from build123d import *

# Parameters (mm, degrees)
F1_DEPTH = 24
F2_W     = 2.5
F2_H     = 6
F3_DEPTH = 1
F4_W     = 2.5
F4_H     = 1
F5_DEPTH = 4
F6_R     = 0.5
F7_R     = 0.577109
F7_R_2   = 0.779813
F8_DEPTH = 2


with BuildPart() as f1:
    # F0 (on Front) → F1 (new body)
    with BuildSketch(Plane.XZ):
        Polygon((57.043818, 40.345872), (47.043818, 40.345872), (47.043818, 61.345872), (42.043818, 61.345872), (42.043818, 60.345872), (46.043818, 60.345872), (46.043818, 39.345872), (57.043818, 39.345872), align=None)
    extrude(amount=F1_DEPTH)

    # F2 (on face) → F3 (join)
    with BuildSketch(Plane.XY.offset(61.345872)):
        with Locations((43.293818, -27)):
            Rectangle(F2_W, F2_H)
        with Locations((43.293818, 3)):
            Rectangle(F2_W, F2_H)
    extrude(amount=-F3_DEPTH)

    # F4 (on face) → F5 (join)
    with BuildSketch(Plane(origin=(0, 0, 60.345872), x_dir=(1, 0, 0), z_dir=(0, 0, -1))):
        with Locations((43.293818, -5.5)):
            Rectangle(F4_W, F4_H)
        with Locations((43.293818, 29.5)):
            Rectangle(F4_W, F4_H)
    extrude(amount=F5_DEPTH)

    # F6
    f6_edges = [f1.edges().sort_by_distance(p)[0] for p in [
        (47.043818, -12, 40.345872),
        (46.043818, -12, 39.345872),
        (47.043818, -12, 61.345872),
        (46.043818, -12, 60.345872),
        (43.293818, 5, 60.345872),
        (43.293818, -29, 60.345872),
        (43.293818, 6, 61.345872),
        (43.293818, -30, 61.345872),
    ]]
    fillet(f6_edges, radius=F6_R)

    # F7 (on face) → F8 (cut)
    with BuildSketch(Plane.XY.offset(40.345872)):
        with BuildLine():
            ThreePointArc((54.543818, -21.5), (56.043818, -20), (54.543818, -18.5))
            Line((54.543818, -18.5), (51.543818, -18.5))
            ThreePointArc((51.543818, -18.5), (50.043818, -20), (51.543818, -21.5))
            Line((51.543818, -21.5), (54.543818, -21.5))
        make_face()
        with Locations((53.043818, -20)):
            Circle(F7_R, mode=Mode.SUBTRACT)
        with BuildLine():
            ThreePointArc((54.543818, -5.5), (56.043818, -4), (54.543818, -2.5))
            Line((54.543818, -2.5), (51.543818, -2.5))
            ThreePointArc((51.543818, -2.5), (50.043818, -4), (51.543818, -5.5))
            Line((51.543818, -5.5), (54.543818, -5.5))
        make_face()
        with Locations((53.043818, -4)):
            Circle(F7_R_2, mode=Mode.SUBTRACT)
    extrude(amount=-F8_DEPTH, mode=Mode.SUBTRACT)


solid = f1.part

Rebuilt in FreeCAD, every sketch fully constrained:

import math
import FreeCAD as App
import Part
import Sketcher
from FreeCAD import Vector
Q = App.Units.Quantity


def edges_at(feature, points):
    """Names of the edges that pass closest to the given points."""
    edges = feature.Shape.Edges
    near = lambda p: min(range(len(edges)), key=lambda i: edges[i].distToShape(Part.Vertex(*p))[0])
    return sorted({f"Edge{near(p) + 1}" for p in points})

doc = App.newDocument("Part")
params = doc.addObject("Spreadsheet::Sheet", "Params")
for row, (alias, value) in enumerate([
    ("sketch1_width", "10 mm"),
    ("sketch1_width2", "5 mm"),
    ("sketch1_width3", "4 mm"),
    ("sketch1_height", "21 mm"),
    ("sketch1_height2", "1 mm"),
    ("pad1_length", "24 mm"),
    ("sketch2_height", "6 mm"),
    ("sketch2_width", "2.5 mm"),
    ("pad2_length", "1 mm"),
    ("sketch3_height", "1 mm"),
    ("sketch3_width", "2.5 mm"),
    ("pad3_length", "4 mm"),
    ("fillet_radius", "0.5 mm"),
    ("sketch4_radius", "1.5 mm"),
    ("sketch4_width", "3 mm"),
    ("pocket1_length", "2 mm"),
], start=1):
    params.set(f"A{row}", alias)
    params.set(f"B{row}", "=" + value)
    params.setAlias(f"B{row}", alias)

body = doc.addObject("PartDesign::Body", "Body")
body.AllowCompound = True

sketch1 = body.newObject("Sketcher::SketchObject", "Sketch")
sketch1.AttachmentSupport = (doc.getObject("XZ_Plane"), [""])
sketch1.MapMode = "FlatFace"
sketch1.addGeometry([
    Part.LineSegment(Vector(57, 40.3, 0), Vector(47, 40.3, 0)),
    Part.LineSegment(Vector(47, 40.3, 0), Vector(47, 61.3, 0)),
    Part.LineSegment(Vector(47, 61.3, 0), Vector(42, 61.3, 0)),
    Part.LineSegment(Vector(42, 61.3, 0), Vector(42, 60.3, 0)),
    Part.LineSegment(Vector(42, 60.3, 0), Vector(46, 60.3, 0)),
    Part.LineSegment(Vector(46, 60.3, 0), Vector(46, 39.3, 0)),
    Part.LineSegment(Vector(46, 39.3, 0), Vector(57, 39.3, 0)),
    Part.LineSegment(Vector(57, 39.3, 0), Vector(57, 40.3, 0)),
], False)
sketch1.addConstraint([
    Sketcher.Constraint("Coincident", 0, 2, 1, 1),
    Sketcher.Constraint("Coincident", 1, 2, 2, 1),
    Sketcher.Constraint("Coincident", 2, 2, 3, 1),
    Sketcher.Constraint("Coincident", 3, 2, 4, 1),
    Sketcher.Constraint("Coincident", 4, 2, 5, 1),
    Sketcher.Constraint("Coincident", 5, 2, 6, 1),
    Sketcher.Constraint("Coincident", 6, 2, 7, 1),
    Sketcher.Constraint("Coincident", 7, 2, 0, 1),
    Sketcher.Constraint("Horizontal", 0),
    Sketcher.Constraint("Vertical", 1),
    Sketcher.Constraint("Horizontal", 2),
    Sketcher.Constraint("Vertical", 3),
    Sketcher.Constraint("Horizontal", 4),
    Sketcher.Constraint("Vertical", 5),
    Sketcher.Constraint("Horizontal", 6),
    Sketcher.Constraint("Vertical", 7),
    Sketcher.Constraint("Equal", 1, 5),
    Sketcher.Constraint("DistanceX", 0, 2, 0, 1, Q("10 mm")),
    Sketcher.Constraint("DistanceX", 2, 2, 2, 1, Q("5 mm")),
    Sketcher.Constraint("DistanceX", 4, 1, 4, 2, Q("4 mm")),
    Sketcher.Constraint("DistanceY", 1, 1, 1, 2, Q("21 mm")),
    Sketcher.Constraint("DistanceY", 3, 2, 3, 1, Q("1 mm")),
    Sketcher.Constraint("DistanceX", -1, 1, 0, 2, Q("47.043818 mm")),
    Sketcher.Constraint("DistanceY", -1, 1, 0, 2, Q("40.345872 mm")),
])
sketch1.setExpression("Constraints[17]", "Params.sketch1_width")
sketch1.setExpression("Constraints[18]", "Params.sketch1_width2")
sketch1.setExpression("Constraints[19]", "Params.sketch1_width3")
sketch1.setExpression("Constraints[20]", "Params.sketch1_height")
sketch1.setExpression("Constraints[21]", "Params.sketch1_height2")
pad1 = body.newObject("PartDesign::Pad", "Pad")
pad1.Profile = sketch1
pad1.setExpression("Length", "Params.pad1_length")

sketch2 = body.newObject("Sketcher::SketchObject", "Sketch001")
sketch2.AttachmentSupport = (doc.getObject("XY_Plane"), [""])
sketch2.MapMode = "FlatFace"
sketch2.AttachmentOffset = App.Placement(Vector(0, 0, 61.345872), App.Rotation())
sketch2.addGeometry([
    Part.LineSegment(Vector(42, -24, 0), Vector(42, -30, 0)),
    Part.LineSegment(Vector(42, -30, 0), Vector(44.5, -30, 0)),
    Part.LineSegment(Vector(44.5, -30, 0), Vector(44.5, -24, 0)),
    Part.LineSegment(Vector(44.5, -24, 0), Vector(42, -24, 0)),
    Part.LineSegment(Vector(42, 6, 0), Vector(42, 0, 0)),
    Part.LineSegment(Vector(42, 0, 0), Vector(44.5, 0, 0)),
    Part.LineSegment(Vector(44.5, 0, 0), Vector(44.5, 6, 0)),
    Part.LineSegment(Vector(44.5, 6, 0), Vector(42, 6, 0)),
], False)
sketch2.addConstraint([
    Sketcher.Constraint("Coincident", 0, 2, 1, 1),
    Sketcher.Constraint("Coincident", 1, 2, 2, 1),
    Sketcher.Constraint("Coincident", 2, 2, 3, 1),
    Sketcher.Constraint("Coincident", 3, 2, 0, 1),
    Sketcher.Constraint("Coincident", 4, 2, 5, 1),
    Sketcher.Constraint("Coincident", 5, 2, 6, 1),
    Sketcher.Constraint("Coincident", 6, 2, 7, 1),
    Sketcher.Constraint("Coincident", 7, 2, 4, 1),
    Sketcher.Constraint("Vertical", 0),
    Sketcher.Constraint("Horizontal", 1),
    Sketcher.Constraint("Vertical", 2),
    Sketcher.Constraint("Horizontal", 3),
    Sketcher.Constraint("Vertical", 4),
    Sketcher.Constraint("Horizontal", 5),
    Sketcher.Constraint("Vertical", 6),
    Sketcher.Constraint("Horizontal", 7),
    Sketcher.Constraint("PointOnObject", 4, 2, -1),
    Sketcher.Constraint("Vertical", 3, 2, 4, 2),
    Sketcher.Constraint("Vertical", 2, 2, 5, 2),
    Sketcher.Constraint("Equal", 2, 4),
    Sketcher.Constraint("DistanceY", 0, 2, 0, 1, Q("6 mm")),
    Sketcher.Constraint("DistanceX", 1, 1, 1, 2, Q("2.5 mm")),
    Sketcher.Constraint("DistanceY", 0, 2, -1, 1, Q("30 mm")),
    Sketcher.Constraint("DistanceX", -1, 1, 0, 2, Q("42.043818 mm")),
])
sketch2.setExpression("Constraints[20]", "Params.sketch2_height")
sketch2.setExpression("Constraints[21]", "Params.sketch2_width")
pad2 = body.newObject("PartDesign::Pad", "Pad001")
pad2.Profile = sketch2
pad2.setExpression("Length", "Params.pad2_length")
pad2.Reversed = True

sketch3 = body.newObject("Sketcher::SketchObject", "Sketch002")
sketch3.AttachmentSupport = (doc.getObject("XY_Plane"), [""])
sketch3.MapMode = "FlatFace"
sketch3.AttachmentOffset = App.Placement(Vector(0, 0, 60.345872), App.Rotation())
sketch3.addGeometry([
    Part.LineSegment(Vector(42, 5, 0), Vector(42, 6, 0)),
    Part.LineSegment(Vector(42, 6, 0), Vector(44.5, 6, 0)),
    Part.LineSegment(Vector(44.5, 6, 0), Vector(44.5, 5, 0)),
    Part.LineSegment(Vector(44.5, 5, 0), Vector(42, 5, 0)),
    Part.LineSegment(Vector(42, -30, 0), Vector(42, -29, 0)),
    Part.LineSegment(Vector(42, -29, 0), Vector(44.5, -29, 0)),
    Part.LineSegment(Vector(44.5, -29, 0), Vector(44.5, -30, 0)),
    Part.LineSegment(Vector(44.5, -30, 0), Vector(42, -30, 0)),
], False)
sketch3.addConstraint([
    Sketcher.Constraint("Coincident", 0, 2, 1, 1),
    Sketcher.Constraint("Coincident", 1, 2, 2, 1),
    Sketcher.Constraint("Coincident", 2, 2, 3, 1),
    Sketcher.Constraint("Coincident", 3, 2, 0, 1),
    Sketcher.Constraint("Coincident", 4, 2, 5, 1),
    Sketcher.Constraint("Coincident", 5, 2, 6, 1),
    Sketcher.Constraint("Coincident", 6, 2, 7, 1),
    Sketcher.Constraint("Coincident", 7, 2, 4, 1),
    Sketcher.Constraint("Vertical", 0),
    Sketcher.Constraint("Horizontal", 1),
    Sketcher.Constraint("Vertical", 2),
    Sketcher.Constraint("Horizontal", 3),
    Sketcher.Constraint("Vertical", 4),
    Sketcher.Constraint("Horizontal", 5),
    Sketcher.Constraint("Vertical", 6),
    Sketcher.Constraint("Horizontal", 7),
    Sketcher.Constraint("Vertical", 3, 2, 4, 2),
    Sketcher.Constraint("Vertical", 2, 2, 5, 2),
    Sketcher.Constraint("Equal", 2, 4),
    Sketcher.Constraint("DistanceY", 0, 1, 0, 2, Q("1 mm")),
    Sketcher.Constraint("DistanceX", 1, 1, 1, 2, Q("2.5 mm")),
    Sketcher.Constraint("DistanceY", -1, 1, 0, 2, Q("6 mm")),
    Sketcher.Constraint("DistanceY", 4, 2, -1, 1, Q("29 mm")),
    Sketcher.Constraint("DistanceX", -1, 1, 0, 2, Q("42.043818 mm")),
])
sketch3.setExpression("Constraints[19]", "Params.sketch3_height")
sketch3.setExpression("Constraints[20]", "Params.sketch3_width")
pad3 = body.newObject("PartDesign::Pad", "Pad002")
pad3.Profile = sketch3
pad3.setExpression("Length", "Params.pad3_length")
pad3.Reversed = True
doc.recompute()

fillet = body.newObject("PartDesign::Fillet", "Fillet")
fillet.Base = (pad3, edges_at(pad3, [
    (47.044, -12, 40.346),
    (46.044, -12, 39.346),
    (47.044, -12, 61.346),
    (46.044, -12, 60.346),
    (43.294, 5, 60.346),
    (43.294, -29, 60.346),
    (43.294, 6, 61.346),
    (43.294, -30, 61.346),
]))
fillet.setExpression("Radius", "Params.fillet_radius")

sketch4 = body.newObject("Sketcher::SketchObject", "Sketch003")
sketch4.AttachmentSupport = (doc.getObject("XY_Plane"), [""])
sketch4.MapMode = "FlatFace"
sketch4.AttachmentOffset = App.Placement(Vector(0, 0, 40.345872), App.Rotation())
sketch4.addGeometry([
    Part.ArcOfCircle(Part.Circle(Vector(54.5, -20, 0), Vector(0, 0, 1), 1.5), math.radians(-90), math.radians(90)),
    Part.LineSegment(Vector(54.5, -18.5, 0), Vector(51.5, -18.5, 0)),
    Part.ArcOfCircle(Part.Circle(Vector(51.5, -20, 0), Vector(0, 0, 1), 1.5), math.radians(90), math.radians(270)),
    Part.LineSegment(Vector(51.5, -21.5, 0), Vector(54.5, -21.5, 0)),
    Part.Circle(Vector(53, -20, 0), Vector(0, 0, 1), 0.6),
    Part.ArcOfCircle(Part.Circle(Vector(54.5, -4, 0), Vector(0, 0, 1), 1.5), math.radians(-90), math.radians(90)),
    Part.LineSegment(Vector(54.5, -2.5, 0), Vector(51.5, -2.5, 0)),
    Part.ArcOfCircle(Part.Circle(Vector(51.5, -4, 0), Vector(0, 0, 1), 1.5), math.radians(90), math.radians(270)),
    Part.LineSegment(Vector(51.5, -5.5, 0), Vector(54.5, -5.5, 0)),
    Part.Circle(Vector(53, -4, 0), Vector(0, 0, 1), 0.8),
], False)
sketch4.addConstraint([
    Sketcher.Constraint("Tangent", 0, 2, 1, 1),
    Sketcher.Constraint("Tangent", 1, 2, 2, 1),
    Sketcher.Constraint("Tangent", 2, 2, 3, 1),
    Sketcher.Constraint("Tangent", 3, 2, 0, 1),
    Sketcher.Constraint("Tangent", 5, 2, 6, 1),
    Sketcher.Constraint("Tangent", 6, 2, 7, 1),
    Sketcher.Constraint("Tangent", 7, 2, 8, 1),
    Sketcher.Constraint("Tangent", 8, 2, 5, 1),
    Sketcher.Constraint("Horizontal", 1),
    Sketcher.Constraint("Horizontal", 3),
    Sketcher.Constraint("Horizontal", 6),
    Sketcher.Constraint("Horizontal", 8),
    Sketcher.Constraint("Equal", 2, 5),
    Sketcher.Constraint("Horizontal", 2, 3, 4, 3),
    Sketcher.Constraint("Horizontal", 7, 3, 9, 3),
    Sketcher.Constraint("Vertical", 0, 3, 5, 3),
    Sketcher.Constraint("Vertical", 2, 3, 7, 3),
    Sketcher.Constraint("Vertical", 4, 3, 9, 3),
    Sketcher.Constraint("Radius", 0, Q("1.5 mm")),
    Sketcher.Constraint("DistanceX", 1, 2, 1, 1, Q("3 mm")),
    Sketcher.Constraint("DistanceY", 0, 3, -1, 1, Q("20 mm")),
    Sketcher.Constraint("DistanceY", 5, 3, -1, 1, Q("4 mm")),
    Sketcher.Constraint("DistanceX", 4, 3, 0, 3, Q("1.5 mm")),
    Sketcher.Constraint("Diameter", 4, Q("1.154218 mm")),
    Sketcher.Constraint("Diameter", 9, Q("1.559626 mm")),
    Sketcher.Constraint("DistanceX", -1, 1, 0, 3, Q("54.543818 mm")),
])
sketch4.setExpression("Constraints[18]", "Params.sketch4_radius")
sketch4.setExpression("Constraints[19]", "Params.sketch4_width")
pocket1 = body.newObject("PartDesign::Pocket", "Pocket")
pocket1.Profile = sketch4
pocket1.setExpression("Length", "Params.pocket1_length")

doc.recompute()
